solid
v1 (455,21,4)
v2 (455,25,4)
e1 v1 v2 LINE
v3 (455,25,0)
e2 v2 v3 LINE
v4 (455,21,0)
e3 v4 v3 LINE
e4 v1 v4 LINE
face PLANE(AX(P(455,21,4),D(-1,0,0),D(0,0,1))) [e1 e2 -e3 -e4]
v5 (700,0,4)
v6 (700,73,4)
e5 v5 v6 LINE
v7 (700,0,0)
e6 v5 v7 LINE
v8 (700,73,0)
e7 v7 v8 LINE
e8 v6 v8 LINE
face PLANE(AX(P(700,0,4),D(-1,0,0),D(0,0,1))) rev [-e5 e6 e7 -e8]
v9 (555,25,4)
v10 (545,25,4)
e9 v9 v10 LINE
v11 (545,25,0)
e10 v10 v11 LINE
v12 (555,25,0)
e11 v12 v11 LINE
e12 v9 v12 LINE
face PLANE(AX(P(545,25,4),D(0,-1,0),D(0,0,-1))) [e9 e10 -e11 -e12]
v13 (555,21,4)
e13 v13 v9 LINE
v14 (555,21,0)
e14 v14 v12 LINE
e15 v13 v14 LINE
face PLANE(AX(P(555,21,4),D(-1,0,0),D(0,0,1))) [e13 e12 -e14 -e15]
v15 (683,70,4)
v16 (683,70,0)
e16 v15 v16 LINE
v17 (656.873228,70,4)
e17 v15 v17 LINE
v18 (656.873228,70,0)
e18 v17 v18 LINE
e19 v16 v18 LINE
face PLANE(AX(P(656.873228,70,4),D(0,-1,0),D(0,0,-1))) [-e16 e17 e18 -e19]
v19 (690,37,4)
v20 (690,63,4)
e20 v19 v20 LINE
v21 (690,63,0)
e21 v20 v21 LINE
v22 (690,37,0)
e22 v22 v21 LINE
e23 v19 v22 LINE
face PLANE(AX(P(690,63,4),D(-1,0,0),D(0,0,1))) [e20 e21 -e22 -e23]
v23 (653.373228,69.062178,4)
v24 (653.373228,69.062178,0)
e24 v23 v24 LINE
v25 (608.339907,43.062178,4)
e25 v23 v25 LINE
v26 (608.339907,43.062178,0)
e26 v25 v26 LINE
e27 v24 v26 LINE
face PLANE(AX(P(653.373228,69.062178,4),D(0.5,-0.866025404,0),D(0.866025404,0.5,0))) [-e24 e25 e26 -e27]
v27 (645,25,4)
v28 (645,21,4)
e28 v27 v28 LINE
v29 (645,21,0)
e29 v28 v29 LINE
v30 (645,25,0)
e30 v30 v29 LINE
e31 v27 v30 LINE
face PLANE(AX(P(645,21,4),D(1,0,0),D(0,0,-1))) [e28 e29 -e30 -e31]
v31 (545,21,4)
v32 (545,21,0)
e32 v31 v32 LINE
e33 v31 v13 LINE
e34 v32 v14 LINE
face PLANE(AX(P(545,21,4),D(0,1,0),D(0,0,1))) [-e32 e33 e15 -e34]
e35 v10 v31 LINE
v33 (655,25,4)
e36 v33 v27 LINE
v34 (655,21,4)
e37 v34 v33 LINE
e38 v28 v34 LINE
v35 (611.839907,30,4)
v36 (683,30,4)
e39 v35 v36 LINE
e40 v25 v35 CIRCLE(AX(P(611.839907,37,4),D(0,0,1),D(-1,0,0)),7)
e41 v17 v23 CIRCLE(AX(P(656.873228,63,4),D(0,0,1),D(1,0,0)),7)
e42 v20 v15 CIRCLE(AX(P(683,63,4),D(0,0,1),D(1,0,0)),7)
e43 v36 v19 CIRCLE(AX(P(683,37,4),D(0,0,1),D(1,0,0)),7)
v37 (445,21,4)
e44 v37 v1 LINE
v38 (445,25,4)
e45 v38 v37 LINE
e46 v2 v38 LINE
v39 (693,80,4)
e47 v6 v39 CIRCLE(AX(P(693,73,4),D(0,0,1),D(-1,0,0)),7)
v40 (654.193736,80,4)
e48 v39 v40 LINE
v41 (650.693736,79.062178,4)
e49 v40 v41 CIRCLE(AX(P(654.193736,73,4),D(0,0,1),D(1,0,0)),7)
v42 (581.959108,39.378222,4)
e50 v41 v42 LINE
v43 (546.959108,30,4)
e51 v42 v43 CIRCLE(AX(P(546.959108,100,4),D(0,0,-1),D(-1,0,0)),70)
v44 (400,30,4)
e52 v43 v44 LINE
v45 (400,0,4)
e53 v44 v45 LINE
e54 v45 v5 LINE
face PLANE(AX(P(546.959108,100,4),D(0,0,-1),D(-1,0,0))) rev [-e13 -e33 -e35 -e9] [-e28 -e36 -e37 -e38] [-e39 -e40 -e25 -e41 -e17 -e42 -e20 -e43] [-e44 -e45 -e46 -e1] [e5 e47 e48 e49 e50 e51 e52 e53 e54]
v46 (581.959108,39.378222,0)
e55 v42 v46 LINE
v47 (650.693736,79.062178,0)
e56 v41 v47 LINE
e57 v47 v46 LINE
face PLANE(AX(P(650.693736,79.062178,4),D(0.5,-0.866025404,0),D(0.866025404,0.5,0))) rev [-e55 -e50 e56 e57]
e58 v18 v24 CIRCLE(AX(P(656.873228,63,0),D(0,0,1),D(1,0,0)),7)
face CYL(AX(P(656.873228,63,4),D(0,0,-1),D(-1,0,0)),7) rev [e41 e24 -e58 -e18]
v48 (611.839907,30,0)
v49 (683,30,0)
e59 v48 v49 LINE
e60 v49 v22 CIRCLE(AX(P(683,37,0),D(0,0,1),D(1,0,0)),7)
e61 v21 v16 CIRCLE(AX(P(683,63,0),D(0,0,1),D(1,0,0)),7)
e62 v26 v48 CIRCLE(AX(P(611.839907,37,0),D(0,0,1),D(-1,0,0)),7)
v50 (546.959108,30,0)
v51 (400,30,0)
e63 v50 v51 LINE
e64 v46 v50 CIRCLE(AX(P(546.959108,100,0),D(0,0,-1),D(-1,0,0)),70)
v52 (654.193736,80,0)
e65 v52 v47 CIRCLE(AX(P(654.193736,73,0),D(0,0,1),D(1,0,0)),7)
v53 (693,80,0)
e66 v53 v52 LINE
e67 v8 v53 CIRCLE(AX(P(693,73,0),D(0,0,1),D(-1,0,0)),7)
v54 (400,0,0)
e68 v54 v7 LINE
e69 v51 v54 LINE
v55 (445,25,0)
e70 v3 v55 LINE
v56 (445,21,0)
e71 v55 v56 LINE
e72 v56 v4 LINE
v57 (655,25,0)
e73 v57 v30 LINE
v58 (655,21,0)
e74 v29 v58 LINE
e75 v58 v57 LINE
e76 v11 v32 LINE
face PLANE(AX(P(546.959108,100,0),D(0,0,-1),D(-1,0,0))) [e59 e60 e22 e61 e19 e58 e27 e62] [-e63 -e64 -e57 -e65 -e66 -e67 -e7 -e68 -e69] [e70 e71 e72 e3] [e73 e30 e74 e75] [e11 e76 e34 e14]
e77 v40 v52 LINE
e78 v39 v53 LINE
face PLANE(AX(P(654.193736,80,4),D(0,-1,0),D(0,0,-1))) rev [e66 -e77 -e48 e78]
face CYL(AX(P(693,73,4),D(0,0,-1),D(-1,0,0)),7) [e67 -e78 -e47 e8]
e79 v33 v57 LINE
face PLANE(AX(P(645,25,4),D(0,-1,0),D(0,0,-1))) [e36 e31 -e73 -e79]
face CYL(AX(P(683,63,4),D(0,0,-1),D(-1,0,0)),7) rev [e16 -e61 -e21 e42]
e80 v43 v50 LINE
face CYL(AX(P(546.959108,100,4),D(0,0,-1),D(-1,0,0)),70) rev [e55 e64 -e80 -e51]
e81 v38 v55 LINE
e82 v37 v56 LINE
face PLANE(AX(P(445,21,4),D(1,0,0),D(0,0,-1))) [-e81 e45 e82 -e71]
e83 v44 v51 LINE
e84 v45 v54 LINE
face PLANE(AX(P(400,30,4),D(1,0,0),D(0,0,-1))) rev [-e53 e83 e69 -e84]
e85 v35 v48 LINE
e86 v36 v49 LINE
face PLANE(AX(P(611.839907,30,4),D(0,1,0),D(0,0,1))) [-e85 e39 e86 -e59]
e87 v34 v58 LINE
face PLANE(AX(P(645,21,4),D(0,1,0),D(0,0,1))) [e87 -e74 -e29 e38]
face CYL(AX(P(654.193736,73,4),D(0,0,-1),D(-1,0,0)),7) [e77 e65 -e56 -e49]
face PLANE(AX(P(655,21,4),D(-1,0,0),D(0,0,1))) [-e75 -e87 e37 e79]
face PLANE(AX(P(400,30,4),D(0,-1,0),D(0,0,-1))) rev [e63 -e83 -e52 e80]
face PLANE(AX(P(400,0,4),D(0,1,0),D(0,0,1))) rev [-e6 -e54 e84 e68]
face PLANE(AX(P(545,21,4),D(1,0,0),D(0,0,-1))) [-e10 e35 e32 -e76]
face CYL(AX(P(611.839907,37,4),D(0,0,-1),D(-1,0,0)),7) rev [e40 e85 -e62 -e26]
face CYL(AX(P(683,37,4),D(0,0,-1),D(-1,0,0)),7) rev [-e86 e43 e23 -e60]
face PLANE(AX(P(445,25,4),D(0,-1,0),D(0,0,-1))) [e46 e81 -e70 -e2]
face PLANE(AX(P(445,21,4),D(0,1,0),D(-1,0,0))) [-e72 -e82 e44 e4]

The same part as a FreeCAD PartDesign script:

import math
import FreeCAD as App
import Part
import Sketcher
from FreeCAD import Vector
Q = App.Units.Quantity

doc = App.newDocument("Part")
params = doc.addObject("Spreadsheet::Sheet", "Params")
for row, (alias, value) in enumerate([
    ("sketch1_radius", "7 mm"),
    ("sketch1_radius2", "70 mm"),
    ("sketch1_width", "300 mm"),
    ("sketch1_width2", "10 mm"),
    ("sketch1_height", "30 mm"),
    ("pad1_length", "4 mm"),
], start=1):
    params.set(f"A{row}", alias)
    params.set(f"B{row}", "=" + value)
    params.setAlias(f"B{row}", alias)

body = doc.addObject("PartDesign::Body", "Body")

# Sketch on XY plane
sketch1 = doc.addObject("Sketcher::SketchObject", "Sketch")
body.addObject(sketch1)
sketch1.AttachmentSupport = (doc.XY_Plane, [""])
sketch1.MapMode = "FlatFace"
sketch1.addGeometry([
    Part.LineSegment(Vector(400, 30, 0), Vector(400, 0, 0)),  # 0
    Part.LineSegment(Vector(400, 0, 0), Vector(700, 0, 0)),  # 1
    Part.LineSegment(Vector(700, 0, 0), Vector(700, 73, 0)),  # 2
    Part.ArcOfCircle(Part.Circle(Vector(693, 73, 0), Vector(0, 0, 1), 7), math.radians(0), math.radians(90)),  # 3
    Part.LineSegment(Vector(693, 80, 0), Vector(654.2, 80, 0)),  # 4
    Part.ArcOfCircle(Part.Circle(Vector(654.2, 73, 0), Vector(0, 0, 1), 7), math.radians(90), math.radians(120)),  # 5
    Part.LineSegment(Vector(650.7, 79.1, 0), Vector(582, 39.4, 0)),  # 6
    Part.ArcOfCircle(Part.Circle(Vector(547, 100, 0), Vector(0, 0, 1), 70), math.radians(-90), math.radians(-60)),  # 7
    Part.LineSegment(Vector(547, 30, 0), Vector(400, 30, 0)),  # 8
    Part.LineSegment(Vector(455, 21, 0), Vector(445, 21, 0)),  # 9
    Part.LineSegment(Vector(445, 21, 0), Vector(445, 25, 0)),  # 10
    Part.LineSegment(Vector(445, 25, 0), Vector(455, 25, 0)),  # 11
    Part.LineSegment(Vector(455, 25, 0), Vector(455, 21, 0)),  # 12
    Part.LineSegment(Vector(555, 21, 0), Vector(545, 21, 0)),  # 13
    Part.LineSegment(Vector(545, 21, 0), Vector(545, 25, 0)),  # 14
    Part.LineSegment(Vector(545, 25, 0), Vector(555, 25, 0)),  # 15
    Part.LineSegment(Vector(555, 25, 0), Vector(555, 21, 0)),  # 16
    Part.LineSegment(Vector(655, 21, 0), Vector(645, 21, 0)),  # 17
    Part.LineSegment(Vector(645, 21, 0), Vector(645, 25, 0)),  # 18
    Part.LineSegment(Vector(645, 25, 0), Vector(655, 25, 0)),  # 19
    Part.LineSegment(Vector(655, 25, 0), Vector(655, 21, 0)),  # 20
    Part.ArcOfCircle(Part.Circle(Vector(683, 63, 0), Vector(0, 0, 1), 7), math.radians(0), math.radians(90)),  # 21
    Part.LineSegment(Vector(690, 63, 0), Vector(690, 37, 0)),  # 22
    Part.ArcOfCircle(Part.Circle(Vector(683, 37, 0), Vector(0, 0, 1), 7), math.radians(-90), math.radians(0)),  # 23
    Part.LineSegment(Vector(683, 30, 0), Vector(611.8, 30, 0)),  # 24
    Part.ArcOfCircle(Part.Circle(Vector(611.8, 37, 0), Vector(0, 0, 1), 7), math.radians(120), math.radians(270)),  # 25
    Part.LineSegment(Vector(608.3, 43.1, 0), Vector(653.4, 69.1, 0)),  # 26
    Part.ArcOfCircle(Part.Circle(Vector(656.9, 63, 0), Vector(0, 0, 1), 7), math.radians(90), math.radians(120)),  # 27
    Part.LineSegment(Vector(656.9, 70, 0), Vector(683, 70, 0)),  # 28
], False)
sketch1.addConstraint([
    Sketcher.Constraint("Coincident", 0, 2, 1, 1),
    Sketcher.Constraint("Coincident", 1, 2, 2, 1),
    Sketcher.Constraint("Tangent", 2, 2, 3, 1),
    Sketcher.Constraint("Tangent", 3, 2, 4, 1),
    Sketcher.Constraint("Tangent", 4, 2, 5, 1),
    Sketcher.Constraint("Tangent", 5, 2, 6, 1),
    Sketcher.Constraint("Tangent", 6, 2, 7, 2),
    Sketcher.Constraint("Tangent", 7, 1, 8, 1),
    Sketcher.Constraint("Coincident", 8, 2, 0, 1),
    Sketcher.Constraint("Coincident", 9, 2, 10, 1),
    Sketcher.Constraint("Coincident", 10, 2, 11, 1),
    Sketcher.Constraint("Coincident", 11, 2, 12, 1),
    Sketcher.Constraint("Coincident", 12, 2, 9, 1),
    Sketcher.Constraint("Coincident", 13, 2, 14, 1),
    Sketcher.Constraint("Coincident", 14, 2, 15, 1),
    Sketcher.Constraint("Coincident", 15, 2, 16, 1),
    Sketcher.Constraint("Coincident", 16, 2, 13, 1),
    Sketcher.Constraint("Coincident", 17, 2, 18, 1),
    Sketcher.Constraint("Coincident", 18, 2, 19, 1),
    Sketcher.Constraint("Coincident", 19, 2, 20, 1),
    Sketcher.Constraint("Coincident", 20, 2, 17, 1),
    Sketcher.Constraint("Tangent", 21, 1, 22, 1),
    Sketcher.Constraint("Tangent", 22, 2, 23, 2),
    Sketcher.Constraint("Tangent", 23, 1, 24, 1),
    Sketcher.Constraint("Tangent", 24, 2, 25, 2),
    Sketcher.Constraint("Tangent", 25, 1, 26, 1),
    Sketcher.Constraint("Tangent", 26, 2, 27, 2),
    Sketcher.Constraint("Tangent", 27, 1, 28, 1),
    Sketcher.Constraint("Tangent", 28, 2, 21, 2),
    Sketcher.Constraint("Vertical", 0),
    Sketcher.Constraint("Horizontal", 1),
    Sketcher.Constraint("Vertical", 2),
    Sketcher.Constraint("Horizontal", 4),
    Sketcher.Constraint("Horizontal", 8),
    Sketcher.Constraint("Horizontal", 9),
    Sketcher.Constraint("Vertical", 10),
    Sketcher.Constraint("Horizontal", 11),
    Sketcher.Constraint("Vertical", 12),
    Sketcher.Constraint("Horizontal", 13),
    Sketcher.Constraint("Vertical", 14),
    Sketcher.Constraint("Horizontal", 15),
    Sketcher.Constraint("Vertical", 16),
    Sketcher.Constraint("Horizontal", 17),
    Sketcher.Constraint("Vertical", 18),
    Sketcher.Constraint("Horizontal", 19),
    Sketcher.Constraint("Vertical", 20),
    Sketcher.Constraint("Vertical", 22),
    Sketcher.Constraint("Horizontal", 24),
    Sketcher.Constraint("Horizontal", 28),
    Sketcher.Constraint("Equal", 3, 5),
    Sketcher.Constraint("Equal", 5, 21),
    Sketcher.Constraint("Equal", 21, 23),
    Sketcher.Constraint("Equal", 23, 25),
    Sketcher.Constraint("Equal", 25, 27),
    Sketcher.Constraint("PointOnObject", 0, 2, -1),
    Sketcher.Constraint("Parallel", 6, 26),
    Sketcher.Constraint("Horizontal", 12, 2, 13, 2),
    Sketcher.Constraint("Horizontal", 11, 2, 14, 2),
    Sketcher.Constraint("Horizontal", 16, 2, 17, 2),
    Sketcher.Constraint("Horizontal", 15, 2, 18, 2),
    Sketcher.Constraint("Horizontal", 8, 2, 23, 1),
    Sketcher.Constraint("Equal", 11, 13),
    Sketcher.Constraint("Equal", 15, 17),
    Sketcher.Constraint("Radius", 3, Q("7 mm")),
    Sketcher.Constraint("Radius", 7, Q("70 mm")),
    Sketcher.Constraint("DistanceX", 1, 1, 1, 2, Q("300 mm")),
    Sketcher.Constraint("DistanceX", 9, 2, 9, 1, Q("10 mm")),
    Sketcher.Constraint("DistanceY", 0, 2, 0, 1, Q("30 mm")),
    Sketcher.Constraint("DistanceY", 2, 1, 2, 2, Q("73 mm")),
    Sketcher.Constraint("DistanceY", 10, 1, 10, 2, Q("4 mm")),
    Sketcher.Constraint("DistanceY", 22, 2, 22, 1, Q("26 mm")),
    Sketcher.Constraint("Angle", 6, Q("-150 deg")),
    Sketcher.Constraint("DistanceX", -1, 1, 3, 3, Q("693 mm")),
    Sketcher.Constraint("DistanceX", -1, 1, 21, 3, Q("683 mm")),
    Sketcher.Constraint("DistanceX", -1, 1, 9, 2, Q("445 mm")),
    Sketcher.Constraint("DistanceY", -1, 1, 9, 2, Q("21 mm")),
    Sketcher.Constraint("DistanceX", -1, 1, 13, 2, Q("545 mm")),
    Sketcher.Constraint("DistanceX", -1, 1, 17, 2, Q("645 mm")),
    Sketcher.Constraint("DistanceX", 28, 1, 28, 2, Q("26.126772 mm")),
    Sketcher.Constraint("DistanceX", 7, 3, 25, 3, Q("64.880799 mm")),
])
sketch1.setExpression("Constraints[63]", "Params.sketch1_radius")
sketch1.setExpression("Constraints[64]", "Params.sketch1_radius2")
sketch1.setExpression("Constraints[65]", "Params.sketch1_width")
sketch1.setExpression("Constraints[66]", "Params.sketch1_width2")
sketch1.setExpression("Constraints[67]", "Params.sketch1_height")
pad1 = doc.addObject("PartDesign::Pad", "Pad")
body.addObject(pad1)
pad1.Profile = sketch1
pad1.setExpression("Length", "Params.pad1_length")

doc.recompute()
